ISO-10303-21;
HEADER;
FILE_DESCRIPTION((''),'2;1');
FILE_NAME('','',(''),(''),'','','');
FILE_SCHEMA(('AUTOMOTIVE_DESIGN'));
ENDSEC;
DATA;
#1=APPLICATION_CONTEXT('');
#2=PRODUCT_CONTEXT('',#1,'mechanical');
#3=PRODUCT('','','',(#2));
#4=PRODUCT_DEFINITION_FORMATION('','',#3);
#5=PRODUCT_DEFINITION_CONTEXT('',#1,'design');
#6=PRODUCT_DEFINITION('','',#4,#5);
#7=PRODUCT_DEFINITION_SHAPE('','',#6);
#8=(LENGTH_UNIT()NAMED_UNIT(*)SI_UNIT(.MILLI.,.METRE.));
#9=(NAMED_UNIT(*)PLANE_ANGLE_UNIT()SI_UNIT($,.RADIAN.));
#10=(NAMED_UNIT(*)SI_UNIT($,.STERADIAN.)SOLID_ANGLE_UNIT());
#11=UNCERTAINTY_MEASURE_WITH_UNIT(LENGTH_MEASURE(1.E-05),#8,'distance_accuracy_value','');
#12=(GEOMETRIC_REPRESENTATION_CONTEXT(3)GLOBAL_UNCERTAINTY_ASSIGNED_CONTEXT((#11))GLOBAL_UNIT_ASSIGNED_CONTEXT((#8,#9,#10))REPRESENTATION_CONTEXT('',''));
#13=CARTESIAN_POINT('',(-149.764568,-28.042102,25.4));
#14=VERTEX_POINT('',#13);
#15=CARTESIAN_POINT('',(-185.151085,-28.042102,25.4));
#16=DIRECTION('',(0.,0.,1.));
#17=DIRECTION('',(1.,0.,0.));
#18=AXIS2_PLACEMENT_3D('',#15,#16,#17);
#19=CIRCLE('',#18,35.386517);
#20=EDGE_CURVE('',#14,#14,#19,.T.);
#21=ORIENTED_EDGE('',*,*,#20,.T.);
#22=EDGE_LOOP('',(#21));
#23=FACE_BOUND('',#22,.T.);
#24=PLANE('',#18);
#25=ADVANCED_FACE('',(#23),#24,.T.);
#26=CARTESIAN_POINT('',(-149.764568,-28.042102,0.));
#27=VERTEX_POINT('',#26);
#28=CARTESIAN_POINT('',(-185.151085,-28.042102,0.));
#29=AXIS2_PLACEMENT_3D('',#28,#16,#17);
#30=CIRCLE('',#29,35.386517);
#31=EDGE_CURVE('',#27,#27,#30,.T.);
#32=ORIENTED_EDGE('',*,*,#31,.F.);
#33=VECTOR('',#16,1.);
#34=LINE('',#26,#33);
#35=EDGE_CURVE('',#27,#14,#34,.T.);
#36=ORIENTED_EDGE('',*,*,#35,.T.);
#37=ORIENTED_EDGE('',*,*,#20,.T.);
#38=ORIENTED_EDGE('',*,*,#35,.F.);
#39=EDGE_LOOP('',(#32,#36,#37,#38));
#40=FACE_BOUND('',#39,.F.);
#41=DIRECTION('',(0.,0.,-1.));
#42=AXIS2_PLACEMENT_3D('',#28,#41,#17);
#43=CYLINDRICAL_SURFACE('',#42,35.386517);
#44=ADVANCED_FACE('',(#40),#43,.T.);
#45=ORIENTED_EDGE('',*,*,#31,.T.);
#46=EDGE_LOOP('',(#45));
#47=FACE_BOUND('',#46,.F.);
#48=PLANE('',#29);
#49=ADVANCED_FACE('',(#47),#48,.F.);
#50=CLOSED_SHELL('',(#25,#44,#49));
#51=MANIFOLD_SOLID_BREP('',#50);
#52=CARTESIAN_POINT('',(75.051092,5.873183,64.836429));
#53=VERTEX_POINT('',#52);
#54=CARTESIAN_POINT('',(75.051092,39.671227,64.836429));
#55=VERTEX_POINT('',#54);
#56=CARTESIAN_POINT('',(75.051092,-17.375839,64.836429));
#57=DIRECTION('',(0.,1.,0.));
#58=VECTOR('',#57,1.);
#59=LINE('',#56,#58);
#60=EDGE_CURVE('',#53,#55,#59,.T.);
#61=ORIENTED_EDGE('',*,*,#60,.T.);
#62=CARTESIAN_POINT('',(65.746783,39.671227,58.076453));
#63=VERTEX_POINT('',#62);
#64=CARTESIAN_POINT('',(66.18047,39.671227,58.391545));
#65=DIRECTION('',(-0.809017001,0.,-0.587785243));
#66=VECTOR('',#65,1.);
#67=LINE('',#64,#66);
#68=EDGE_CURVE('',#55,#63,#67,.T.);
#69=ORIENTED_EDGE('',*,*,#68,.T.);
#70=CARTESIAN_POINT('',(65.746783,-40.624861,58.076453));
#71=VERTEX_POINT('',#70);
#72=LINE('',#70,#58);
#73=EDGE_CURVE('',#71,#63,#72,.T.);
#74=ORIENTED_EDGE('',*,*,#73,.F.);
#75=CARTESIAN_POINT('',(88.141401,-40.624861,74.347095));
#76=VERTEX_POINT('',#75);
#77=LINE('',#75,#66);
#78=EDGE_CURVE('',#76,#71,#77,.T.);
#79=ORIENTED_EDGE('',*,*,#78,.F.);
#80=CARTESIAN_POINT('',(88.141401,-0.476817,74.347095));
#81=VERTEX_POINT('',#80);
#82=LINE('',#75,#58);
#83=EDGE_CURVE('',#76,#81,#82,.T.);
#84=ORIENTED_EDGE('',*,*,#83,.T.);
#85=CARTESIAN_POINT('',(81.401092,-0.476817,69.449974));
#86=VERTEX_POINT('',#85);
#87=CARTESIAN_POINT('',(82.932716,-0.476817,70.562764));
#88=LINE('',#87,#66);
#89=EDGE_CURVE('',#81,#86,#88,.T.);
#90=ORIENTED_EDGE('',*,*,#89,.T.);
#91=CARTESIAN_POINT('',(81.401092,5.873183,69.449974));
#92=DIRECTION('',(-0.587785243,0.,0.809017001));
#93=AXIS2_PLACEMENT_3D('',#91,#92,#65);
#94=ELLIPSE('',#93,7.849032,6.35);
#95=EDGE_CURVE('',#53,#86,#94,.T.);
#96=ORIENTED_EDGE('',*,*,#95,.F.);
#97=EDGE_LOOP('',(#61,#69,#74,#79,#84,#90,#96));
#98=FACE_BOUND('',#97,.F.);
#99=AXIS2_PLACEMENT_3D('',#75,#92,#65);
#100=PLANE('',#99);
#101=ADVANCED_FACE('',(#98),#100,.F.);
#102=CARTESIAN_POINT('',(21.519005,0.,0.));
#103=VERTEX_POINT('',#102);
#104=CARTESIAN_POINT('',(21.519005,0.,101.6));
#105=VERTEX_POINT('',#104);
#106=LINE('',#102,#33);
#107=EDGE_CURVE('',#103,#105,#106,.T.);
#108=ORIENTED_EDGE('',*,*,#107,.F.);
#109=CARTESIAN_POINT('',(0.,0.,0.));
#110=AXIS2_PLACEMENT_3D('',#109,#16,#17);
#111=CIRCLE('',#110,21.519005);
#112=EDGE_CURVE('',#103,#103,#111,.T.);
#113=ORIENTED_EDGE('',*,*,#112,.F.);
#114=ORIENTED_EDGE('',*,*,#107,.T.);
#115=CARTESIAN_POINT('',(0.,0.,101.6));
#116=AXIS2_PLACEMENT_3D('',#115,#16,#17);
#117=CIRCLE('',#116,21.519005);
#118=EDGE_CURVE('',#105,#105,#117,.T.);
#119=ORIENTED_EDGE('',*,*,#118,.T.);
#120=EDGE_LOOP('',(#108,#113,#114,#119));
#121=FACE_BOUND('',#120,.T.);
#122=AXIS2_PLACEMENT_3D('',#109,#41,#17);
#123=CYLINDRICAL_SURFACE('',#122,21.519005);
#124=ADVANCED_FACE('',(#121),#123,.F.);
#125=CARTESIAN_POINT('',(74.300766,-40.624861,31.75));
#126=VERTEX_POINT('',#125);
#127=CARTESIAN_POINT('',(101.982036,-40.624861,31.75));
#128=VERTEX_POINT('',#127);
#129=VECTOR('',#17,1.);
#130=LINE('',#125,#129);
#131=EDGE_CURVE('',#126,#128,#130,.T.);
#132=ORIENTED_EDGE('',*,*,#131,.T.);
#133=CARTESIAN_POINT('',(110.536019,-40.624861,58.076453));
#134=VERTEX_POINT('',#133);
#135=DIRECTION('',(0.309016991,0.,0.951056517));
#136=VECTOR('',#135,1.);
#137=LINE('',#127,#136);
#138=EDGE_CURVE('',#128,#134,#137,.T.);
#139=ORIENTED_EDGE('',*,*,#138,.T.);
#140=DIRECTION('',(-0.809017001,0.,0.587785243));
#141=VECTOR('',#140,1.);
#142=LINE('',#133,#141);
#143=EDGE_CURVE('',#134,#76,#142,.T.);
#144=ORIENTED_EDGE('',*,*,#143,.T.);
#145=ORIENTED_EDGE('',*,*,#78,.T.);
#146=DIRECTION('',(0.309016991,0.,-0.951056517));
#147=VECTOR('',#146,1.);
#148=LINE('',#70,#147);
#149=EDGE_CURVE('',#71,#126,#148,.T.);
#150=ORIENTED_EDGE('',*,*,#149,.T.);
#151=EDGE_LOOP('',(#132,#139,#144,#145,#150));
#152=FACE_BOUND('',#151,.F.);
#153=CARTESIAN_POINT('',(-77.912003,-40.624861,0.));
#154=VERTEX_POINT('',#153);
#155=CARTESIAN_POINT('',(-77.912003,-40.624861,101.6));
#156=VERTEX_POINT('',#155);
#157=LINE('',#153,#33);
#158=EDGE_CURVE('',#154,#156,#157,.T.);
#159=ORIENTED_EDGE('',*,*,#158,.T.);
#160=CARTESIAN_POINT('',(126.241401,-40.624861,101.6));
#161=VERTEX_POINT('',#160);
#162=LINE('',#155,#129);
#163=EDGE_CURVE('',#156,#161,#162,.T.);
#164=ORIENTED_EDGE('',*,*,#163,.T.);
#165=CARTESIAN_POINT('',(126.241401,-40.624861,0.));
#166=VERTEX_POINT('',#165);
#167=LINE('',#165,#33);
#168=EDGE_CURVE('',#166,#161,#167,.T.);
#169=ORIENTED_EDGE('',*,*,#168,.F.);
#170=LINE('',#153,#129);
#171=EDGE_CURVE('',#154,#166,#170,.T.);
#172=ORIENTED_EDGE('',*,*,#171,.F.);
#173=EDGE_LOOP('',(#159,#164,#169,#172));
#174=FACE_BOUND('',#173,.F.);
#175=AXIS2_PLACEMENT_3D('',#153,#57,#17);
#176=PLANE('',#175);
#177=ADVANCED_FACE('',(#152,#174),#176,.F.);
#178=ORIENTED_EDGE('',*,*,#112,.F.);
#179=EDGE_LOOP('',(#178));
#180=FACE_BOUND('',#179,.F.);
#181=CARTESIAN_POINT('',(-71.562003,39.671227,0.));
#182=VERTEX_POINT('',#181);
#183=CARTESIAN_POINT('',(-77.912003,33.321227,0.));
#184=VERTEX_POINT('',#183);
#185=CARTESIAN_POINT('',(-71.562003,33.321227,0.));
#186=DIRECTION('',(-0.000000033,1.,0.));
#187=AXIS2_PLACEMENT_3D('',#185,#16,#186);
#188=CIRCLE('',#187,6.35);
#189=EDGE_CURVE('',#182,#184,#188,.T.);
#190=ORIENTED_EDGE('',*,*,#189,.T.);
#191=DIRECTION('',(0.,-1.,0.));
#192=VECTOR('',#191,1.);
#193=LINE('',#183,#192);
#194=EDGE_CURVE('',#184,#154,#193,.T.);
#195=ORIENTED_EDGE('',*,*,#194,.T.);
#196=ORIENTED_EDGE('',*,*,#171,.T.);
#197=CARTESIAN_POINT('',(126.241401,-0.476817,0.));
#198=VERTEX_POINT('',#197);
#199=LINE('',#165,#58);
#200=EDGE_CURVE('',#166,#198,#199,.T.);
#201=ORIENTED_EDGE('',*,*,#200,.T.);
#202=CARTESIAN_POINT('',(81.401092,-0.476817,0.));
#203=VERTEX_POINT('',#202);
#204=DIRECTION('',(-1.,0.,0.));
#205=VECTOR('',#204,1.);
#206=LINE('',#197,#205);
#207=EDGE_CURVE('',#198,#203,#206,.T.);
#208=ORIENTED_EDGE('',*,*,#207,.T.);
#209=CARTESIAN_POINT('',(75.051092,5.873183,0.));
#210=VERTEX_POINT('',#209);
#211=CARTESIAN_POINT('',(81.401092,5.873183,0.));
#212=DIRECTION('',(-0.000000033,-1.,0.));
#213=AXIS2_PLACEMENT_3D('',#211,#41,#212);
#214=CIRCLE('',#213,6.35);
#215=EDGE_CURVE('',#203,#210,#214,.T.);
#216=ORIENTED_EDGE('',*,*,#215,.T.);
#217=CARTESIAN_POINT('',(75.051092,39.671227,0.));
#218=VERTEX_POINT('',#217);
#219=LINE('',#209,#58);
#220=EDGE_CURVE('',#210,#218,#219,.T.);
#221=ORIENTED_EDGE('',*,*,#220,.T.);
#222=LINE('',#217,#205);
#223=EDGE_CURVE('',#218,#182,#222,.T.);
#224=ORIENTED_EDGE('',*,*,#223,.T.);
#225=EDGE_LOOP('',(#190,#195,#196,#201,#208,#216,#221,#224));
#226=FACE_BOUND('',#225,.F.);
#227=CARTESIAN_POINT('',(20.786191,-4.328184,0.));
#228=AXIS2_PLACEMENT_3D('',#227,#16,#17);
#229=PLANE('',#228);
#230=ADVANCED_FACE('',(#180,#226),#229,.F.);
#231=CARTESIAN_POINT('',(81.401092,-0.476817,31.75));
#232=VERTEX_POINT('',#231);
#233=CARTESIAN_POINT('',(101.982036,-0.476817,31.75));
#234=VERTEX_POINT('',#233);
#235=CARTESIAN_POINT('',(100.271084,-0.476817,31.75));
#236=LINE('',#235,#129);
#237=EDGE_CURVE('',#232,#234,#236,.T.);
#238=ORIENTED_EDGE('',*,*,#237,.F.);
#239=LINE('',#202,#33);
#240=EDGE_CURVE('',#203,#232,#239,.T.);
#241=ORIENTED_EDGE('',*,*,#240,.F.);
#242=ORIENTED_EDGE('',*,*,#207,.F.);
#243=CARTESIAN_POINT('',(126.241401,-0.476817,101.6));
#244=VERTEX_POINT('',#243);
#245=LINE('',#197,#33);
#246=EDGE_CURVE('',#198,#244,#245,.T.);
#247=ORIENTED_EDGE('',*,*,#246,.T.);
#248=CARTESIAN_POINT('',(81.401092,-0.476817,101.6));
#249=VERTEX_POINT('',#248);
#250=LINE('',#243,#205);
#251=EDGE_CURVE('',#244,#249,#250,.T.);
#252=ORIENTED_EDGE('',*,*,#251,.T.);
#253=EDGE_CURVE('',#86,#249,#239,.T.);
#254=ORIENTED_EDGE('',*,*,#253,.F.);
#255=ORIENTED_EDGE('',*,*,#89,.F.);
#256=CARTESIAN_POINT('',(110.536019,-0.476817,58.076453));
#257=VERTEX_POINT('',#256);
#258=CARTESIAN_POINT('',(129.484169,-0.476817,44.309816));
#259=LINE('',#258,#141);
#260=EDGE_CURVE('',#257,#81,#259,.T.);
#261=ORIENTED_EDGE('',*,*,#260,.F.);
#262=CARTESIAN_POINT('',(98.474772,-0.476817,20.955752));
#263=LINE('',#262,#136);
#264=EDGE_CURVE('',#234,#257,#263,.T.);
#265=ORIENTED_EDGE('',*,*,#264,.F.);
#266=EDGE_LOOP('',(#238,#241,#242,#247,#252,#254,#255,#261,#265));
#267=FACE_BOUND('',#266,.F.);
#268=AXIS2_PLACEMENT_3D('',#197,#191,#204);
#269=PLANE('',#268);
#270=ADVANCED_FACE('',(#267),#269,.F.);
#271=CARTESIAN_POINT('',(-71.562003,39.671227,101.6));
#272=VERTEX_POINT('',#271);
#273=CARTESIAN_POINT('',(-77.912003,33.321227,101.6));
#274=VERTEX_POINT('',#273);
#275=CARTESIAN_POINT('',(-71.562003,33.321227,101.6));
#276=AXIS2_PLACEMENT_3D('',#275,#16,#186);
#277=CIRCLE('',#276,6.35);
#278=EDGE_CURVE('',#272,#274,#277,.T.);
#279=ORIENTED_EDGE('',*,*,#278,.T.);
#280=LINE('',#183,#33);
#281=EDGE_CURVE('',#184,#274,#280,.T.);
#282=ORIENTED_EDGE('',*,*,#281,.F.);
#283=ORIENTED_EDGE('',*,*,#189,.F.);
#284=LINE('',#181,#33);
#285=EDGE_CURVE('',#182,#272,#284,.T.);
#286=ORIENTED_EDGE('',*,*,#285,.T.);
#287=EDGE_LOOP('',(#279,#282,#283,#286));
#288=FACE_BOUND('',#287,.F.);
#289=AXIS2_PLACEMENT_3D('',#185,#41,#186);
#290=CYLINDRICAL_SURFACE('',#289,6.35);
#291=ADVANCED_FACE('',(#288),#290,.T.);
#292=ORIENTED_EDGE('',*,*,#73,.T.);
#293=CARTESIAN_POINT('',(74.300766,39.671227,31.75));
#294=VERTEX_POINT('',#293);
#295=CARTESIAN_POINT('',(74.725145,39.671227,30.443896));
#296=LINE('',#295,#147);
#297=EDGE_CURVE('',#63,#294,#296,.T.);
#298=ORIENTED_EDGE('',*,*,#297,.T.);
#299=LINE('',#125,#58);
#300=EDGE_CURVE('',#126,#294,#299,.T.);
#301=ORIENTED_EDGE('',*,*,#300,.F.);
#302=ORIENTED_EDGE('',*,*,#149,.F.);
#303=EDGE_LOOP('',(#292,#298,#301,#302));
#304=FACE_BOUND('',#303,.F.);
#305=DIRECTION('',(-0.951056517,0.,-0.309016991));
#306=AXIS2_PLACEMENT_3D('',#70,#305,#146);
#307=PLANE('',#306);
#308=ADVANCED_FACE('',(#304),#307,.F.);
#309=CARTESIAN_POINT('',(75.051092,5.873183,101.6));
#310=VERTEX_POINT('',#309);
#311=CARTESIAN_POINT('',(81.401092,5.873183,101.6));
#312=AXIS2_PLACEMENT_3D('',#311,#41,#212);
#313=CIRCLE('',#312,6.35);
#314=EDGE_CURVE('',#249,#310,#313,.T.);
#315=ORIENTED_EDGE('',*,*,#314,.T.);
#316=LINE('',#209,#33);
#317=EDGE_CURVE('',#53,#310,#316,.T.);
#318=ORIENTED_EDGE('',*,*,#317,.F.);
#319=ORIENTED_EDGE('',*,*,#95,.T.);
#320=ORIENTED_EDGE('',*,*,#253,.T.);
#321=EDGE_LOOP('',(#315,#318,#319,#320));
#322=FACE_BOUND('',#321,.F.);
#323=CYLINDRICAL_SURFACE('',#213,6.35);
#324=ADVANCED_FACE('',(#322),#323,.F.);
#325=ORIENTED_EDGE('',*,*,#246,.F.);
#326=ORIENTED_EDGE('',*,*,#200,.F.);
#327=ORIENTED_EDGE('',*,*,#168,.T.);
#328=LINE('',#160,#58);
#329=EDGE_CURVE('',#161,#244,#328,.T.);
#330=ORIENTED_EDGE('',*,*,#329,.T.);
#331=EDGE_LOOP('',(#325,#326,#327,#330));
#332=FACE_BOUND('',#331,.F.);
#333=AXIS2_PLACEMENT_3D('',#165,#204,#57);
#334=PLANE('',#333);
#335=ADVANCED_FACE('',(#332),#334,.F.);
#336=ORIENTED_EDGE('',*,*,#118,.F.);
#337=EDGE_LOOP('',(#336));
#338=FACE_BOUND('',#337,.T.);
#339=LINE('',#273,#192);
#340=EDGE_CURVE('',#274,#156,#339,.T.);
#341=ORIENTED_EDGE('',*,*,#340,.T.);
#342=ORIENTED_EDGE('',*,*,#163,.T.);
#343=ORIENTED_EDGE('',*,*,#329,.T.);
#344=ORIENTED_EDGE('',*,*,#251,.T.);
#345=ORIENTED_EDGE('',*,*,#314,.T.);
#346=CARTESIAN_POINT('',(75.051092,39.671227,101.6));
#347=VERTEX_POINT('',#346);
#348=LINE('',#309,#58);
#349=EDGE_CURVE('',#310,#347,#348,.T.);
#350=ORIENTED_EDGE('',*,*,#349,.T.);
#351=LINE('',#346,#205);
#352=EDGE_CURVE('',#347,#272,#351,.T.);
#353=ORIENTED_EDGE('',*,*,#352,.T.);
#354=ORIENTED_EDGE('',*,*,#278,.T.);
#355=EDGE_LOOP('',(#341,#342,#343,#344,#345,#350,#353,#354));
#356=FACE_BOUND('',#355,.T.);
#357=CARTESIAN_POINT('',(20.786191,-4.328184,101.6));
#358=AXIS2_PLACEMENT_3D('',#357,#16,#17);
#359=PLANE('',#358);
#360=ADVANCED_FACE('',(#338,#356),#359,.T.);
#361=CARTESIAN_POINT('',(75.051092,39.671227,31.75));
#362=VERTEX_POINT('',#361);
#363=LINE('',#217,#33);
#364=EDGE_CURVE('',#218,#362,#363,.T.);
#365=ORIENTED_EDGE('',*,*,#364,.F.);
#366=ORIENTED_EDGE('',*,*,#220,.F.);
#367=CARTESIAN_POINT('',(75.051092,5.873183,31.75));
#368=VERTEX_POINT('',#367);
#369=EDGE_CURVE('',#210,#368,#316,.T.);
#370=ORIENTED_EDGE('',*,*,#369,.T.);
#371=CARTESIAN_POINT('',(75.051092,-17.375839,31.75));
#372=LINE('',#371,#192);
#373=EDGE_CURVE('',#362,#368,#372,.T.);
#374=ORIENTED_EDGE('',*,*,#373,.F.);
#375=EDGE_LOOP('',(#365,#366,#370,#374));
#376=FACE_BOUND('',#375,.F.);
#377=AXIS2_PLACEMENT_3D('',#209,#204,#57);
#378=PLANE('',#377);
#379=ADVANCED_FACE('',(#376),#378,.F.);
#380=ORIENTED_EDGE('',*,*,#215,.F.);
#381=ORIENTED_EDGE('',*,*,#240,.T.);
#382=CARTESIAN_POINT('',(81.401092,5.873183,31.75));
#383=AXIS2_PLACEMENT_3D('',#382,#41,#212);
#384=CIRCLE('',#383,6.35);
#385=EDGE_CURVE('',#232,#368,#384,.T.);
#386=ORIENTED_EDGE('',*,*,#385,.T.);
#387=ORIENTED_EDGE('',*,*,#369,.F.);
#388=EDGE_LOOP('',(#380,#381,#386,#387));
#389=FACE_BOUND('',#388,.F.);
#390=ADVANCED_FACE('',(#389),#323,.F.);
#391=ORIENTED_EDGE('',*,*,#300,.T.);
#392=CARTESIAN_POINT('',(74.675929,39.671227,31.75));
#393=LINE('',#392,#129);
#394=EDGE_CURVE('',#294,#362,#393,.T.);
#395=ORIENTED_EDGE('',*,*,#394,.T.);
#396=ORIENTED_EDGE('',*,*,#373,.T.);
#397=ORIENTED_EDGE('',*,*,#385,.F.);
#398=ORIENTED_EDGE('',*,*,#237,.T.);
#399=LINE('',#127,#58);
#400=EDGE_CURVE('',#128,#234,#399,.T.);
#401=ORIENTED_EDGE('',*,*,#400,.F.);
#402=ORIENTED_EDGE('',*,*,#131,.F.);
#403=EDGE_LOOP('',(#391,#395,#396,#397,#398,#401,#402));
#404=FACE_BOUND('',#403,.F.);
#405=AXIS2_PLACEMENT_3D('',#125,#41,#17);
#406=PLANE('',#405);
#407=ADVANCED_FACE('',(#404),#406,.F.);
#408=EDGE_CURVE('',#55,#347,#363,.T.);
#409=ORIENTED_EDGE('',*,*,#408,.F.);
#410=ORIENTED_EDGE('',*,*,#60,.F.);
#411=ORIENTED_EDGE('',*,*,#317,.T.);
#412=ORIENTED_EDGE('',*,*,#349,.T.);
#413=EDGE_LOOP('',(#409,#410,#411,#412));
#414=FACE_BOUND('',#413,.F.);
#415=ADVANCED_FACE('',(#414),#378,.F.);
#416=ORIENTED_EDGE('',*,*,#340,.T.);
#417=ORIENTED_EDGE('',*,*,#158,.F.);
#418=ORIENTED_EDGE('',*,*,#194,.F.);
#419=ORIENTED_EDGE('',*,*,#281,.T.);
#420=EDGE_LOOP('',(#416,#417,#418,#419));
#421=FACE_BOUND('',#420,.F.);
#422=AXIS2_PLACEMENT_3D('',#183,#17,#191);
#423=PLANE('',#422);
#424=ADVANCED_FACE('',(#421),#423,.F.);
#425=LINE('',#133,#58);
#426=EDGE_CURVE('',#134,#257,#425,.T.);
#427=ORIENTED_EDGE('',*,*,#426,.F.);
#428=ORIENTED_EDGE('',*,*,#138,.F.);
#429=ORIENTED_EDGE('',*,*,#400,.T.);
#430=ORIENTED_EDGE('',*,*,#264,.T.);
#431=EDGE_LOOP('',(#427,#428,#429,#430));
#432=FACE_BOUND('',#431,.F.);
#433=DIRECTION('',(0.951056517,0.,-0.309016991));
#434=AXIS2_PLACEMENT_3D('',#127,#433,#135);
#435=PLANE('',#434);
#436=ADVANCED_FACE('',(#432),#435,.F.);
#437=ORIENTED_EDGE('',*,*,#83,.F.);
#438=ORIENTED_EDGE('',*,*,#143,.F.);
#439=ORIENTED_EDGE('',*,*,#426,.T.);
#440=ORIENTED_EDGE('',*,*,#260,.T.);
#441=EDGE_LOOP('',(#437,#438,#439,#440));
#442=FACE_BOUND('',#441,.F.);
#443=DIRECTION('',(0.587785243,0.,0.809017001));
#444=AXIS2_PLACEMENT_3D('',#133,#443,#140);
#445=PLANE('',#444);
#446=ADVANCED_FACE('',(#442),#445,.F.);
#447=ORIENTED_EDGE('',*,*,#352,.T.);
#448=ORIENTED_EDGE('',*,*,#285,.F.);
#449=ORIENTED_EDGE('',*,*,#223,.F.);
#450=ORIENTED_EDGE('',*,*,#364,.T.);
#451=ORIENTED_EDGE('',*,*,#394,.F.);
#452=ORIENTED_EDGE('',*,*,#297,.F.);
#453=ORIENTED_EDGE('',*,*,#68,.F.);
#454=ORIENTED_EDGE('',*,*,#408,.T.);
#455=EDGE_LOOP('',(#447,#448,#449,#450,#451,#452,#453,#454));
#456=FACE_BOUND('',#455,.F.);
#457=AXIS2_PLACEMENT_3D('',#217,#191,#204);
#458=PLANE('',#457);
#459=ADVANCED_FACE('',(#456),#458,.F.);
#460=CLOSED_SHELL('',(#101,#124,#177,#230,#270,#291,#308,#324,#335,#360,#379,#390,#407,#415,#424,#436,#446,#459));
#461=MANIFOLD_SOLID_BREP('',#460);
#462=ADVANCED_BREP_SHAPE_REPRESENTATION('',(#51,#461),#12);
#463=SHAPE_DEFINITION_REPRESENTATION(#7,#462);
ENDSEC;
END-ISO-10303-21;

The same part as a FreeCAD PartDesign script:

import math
import FreeCAD as App
import Part
import Sketcher
Q = App.Units.Quantity

doc = App.newDocument("Part")
params = doc.addObject("Spreadsheet::Sheet", "Params")
for row, (alias, value) in enumerate([
    ("sketch1_radius", "0.25 in"),
    ("pad1_length", "4 in"),
    ("pad2_length", "1 in"),
], start=1):
    params.set(f"A{row}", alias)
    params.set(f"B{row}", "=" + value)
    params.setAlias(f"B{row}", alias)

body = doc.addObject("PartDesign::Body", "Body")

# Sketch on XY plane
sketch1 = body.newObject("Sketcher::SketchObject", "Sketch")
sketch1.AttachmentSupport = (doc.getObject("XY_Plane"), [""])
sketch1.MapMode = "FlatFace"
sketch1.addGeometry([
    Part.LineSegment(App.Vector(75, 40, 0), App.Vector(-72, 40, 0)),  # 0
    Part.ArcOfCircle(Part.Circle(App.Vector(-72, 33, 0), App.Vector(0, 0, 1), 6), math.radians(90), math.radians(180)),  # 1
    Part.LineSegment(App.Vector(-78, 33, 0), App.Vector(-78, -41, 0)),  # 2
    Part.LineSegment(App.Vector(-78, -41, 0), App.Vector(126, -41, 0)),  # 3
    Part.LineSegment(App.Vector(126, -41, 0), App.Vector(126, 0, 0)),  # 4
    Part.LineSegment(App.Vector(126, 0, 0), App.Vector(81, 0, 0)),  # 5
    Part.ArcOfCircle(Part.Circle(App.Vector(81, 6, 0), App.Vector(0, 0, 1), 6), math.radians(-180), math.radians(-90)),  # 6
    Part.LineSegment(App.Vector(75, 6, 0), App.Vector(75, 40, 0)),  # 7
    Part.Circle(App.Vector(0, 0, 0), App.Vector(0, 0, 1), 22),  # 8
], False)
sketch1.addConstraint([
    Sketcher.Constraint("Tangent", 0, 2, 1, 1),
    Sketcher.Constraint("Tangent", 1, 2, 2, 1),
    Sketcher.Constraint("Coincident", 2, 2, 3, 1),
    Sketcher.Constraint("Coincident", 3, 2, 4, 1),
    Sketcher.Constraint("Coincident", 4, 2, 5, 1),
    Sketcher.Constraint("Tangent", 5, 2, 6, 2),
    Sketcher.Constraint("Tangent", 6, 1, 7, 1),
    Sketcher.Constraint("Coincident", 7, 2, 0, 1),
    Sketcher.Constraint("Horizontal", 0),
    Sketcher.Constraint("Vertical", 2),
    Sketcher.Constraint("Horizontal", 3),
    Sketcher.Constraint("Vertical", 4),
    Sketcher.Constraint("Horizontal", 5),
    Sketcher.Constraint("Vertical", 7),
    Sketcher.Constraint("Coincident", 8, 3, -1, 1),
    Sketcher.Constraint("Equal", 1, 6),
    Sketcher.Constraint("Radius", 1, Q("0.25 in")),
    Sketcher.Constraint("Diameter", 8, 43.03801),
    Sketcher.Constraint("DistanceX", 5, 2, 5, 1, 44.840309),
    Sketcher.Constraint("DistanceY", 2, 2, 2, 1, 73.946088),
    Sketcher.Constraint("DistanceX", -1, 1, 3, 2, 126.241401),
    Sketcher.Constraint("DistanceX", 0, 2, 0, 1, 146.613095),
    Sketcher.Constraint("DistanceY", 4, 1, 4, 2, 40.148044),
    Sketcher.Constraint("DistanceY", 2, 2, -1, 1, 40.624861),
])
sketch1.setExpression("Constraints[16]", "Params.sketch1_radius")
pad1 = body.newObject("PartDesign::Pad", "Pad")
pad1.Profile = sketch1
pad1.setExpression("Length", "Params.pad1_length")

# Sketch on XZ plane
sketch2 = body.newObject("Sketcher::SketchObject", "Sketch001")
sketch2.AttachmentSupport = (doc.getObject("XZ_Plane"), [""])
sketch2.MapMode = "FlatFace"
sketch2.AttachmentOffset = App.Placement(App.Vector(0, 0, 40.624861), App.Rotation())
sketch2.addGeometry([
    Part.LineSegment(App.Vector(66, 58, 0), App.Vector(74, 32, 0)),  # 0
    Part.LineSegment(App.Vector(74, 32, 0), App.Vector(102, 32, 0)),  # 1
    Part.LineSegment(App.Vector(102, 32, 0), App.Vector(111, 58, 0)),  # 2
    Part.LineSegment(App.Vector(111, 58, 0), App.Vector(88, 74, 0)),  # 3
    Part.LineSegment(App.Vector(88, 74, 0), App.Vector(66, 58, 0)),  # 4
], False)
sketch2.addConstraint([
    Sketcher.Constraint("Coincident", 0, 2, 1, 1),
    Sketcher.Constraint("Coincident", 1, 2, 2, 1),
    Sketcher.Constraint("Coincident", 2, 2, 3, 1),
    Sketcher.Constraint("Coincident", 3, 2, 4, 1),
    Sketcher.Constraint("Coincident", 4, 2, 0, 1),
    Sketcher.Constraint("Horizontal", 1),
    Sketcher.Constraint("Horizontal", 2, 2, 4, 2),
    Sketcher.Constraint("Equal", 0, 2),
    Sketcher.Constraint("Equal", 2, 3),
    Sketcher.Constraint("Equal", 3, 4),
    Sketcher.Constraint("Angle", 0, Q("-72 deg")),
    Sketcher.Constraint("Angle", 3, Q("144.000001 deg")),
    Sketcher.Constraint("DistanceY", -1, 1, 0, 2, Q("1.25 in")),
    Sketcher.Constraint("DistanceX", 1, 1, 1, 2, 27.68127),
    Sketcher.Constraint("DistanceX", -1, 1, 3, 2, 88.141401),
])
pocket1 = body.newObject("PartDesign::Pocket", "Pocket")
pocket1.Profile = sketch2
pocket1.Type = "ThroughAll"
body2 = doc.addObject("PartDesign::Body", "Body001")

# Sketch on XY plane
sketch3 = body2.newObject("Sketcher::SketchObject", "Sketch002")
sketch3.AttachmentSupport = (doc.getObject("XY_Plane001"), [""])
sketch3.MapMode = "FlatFace"
sketch3.addGeometry(Part.Circle(App.Vector(-185, -28, 0), App.Vector(0, 0, 1), 35), False)
sketch3.addConstraint([
    Sketcher.Constraint("Diameter", 0, 70.773034),
    Sketcher.Constraint("DistanceY", 0, 3, -1, 1, 28.042102),
    Sketcher.Constraint("DistanceX", 0, 3, -1, 1, 185.151085),
])
pad2 = body2.newObject("PartDesign::Pad", "Pad001")
pad2.Profile = sketch3
pad2.setExpression("Length", "Params.pad2_length")

doc.recompute()
